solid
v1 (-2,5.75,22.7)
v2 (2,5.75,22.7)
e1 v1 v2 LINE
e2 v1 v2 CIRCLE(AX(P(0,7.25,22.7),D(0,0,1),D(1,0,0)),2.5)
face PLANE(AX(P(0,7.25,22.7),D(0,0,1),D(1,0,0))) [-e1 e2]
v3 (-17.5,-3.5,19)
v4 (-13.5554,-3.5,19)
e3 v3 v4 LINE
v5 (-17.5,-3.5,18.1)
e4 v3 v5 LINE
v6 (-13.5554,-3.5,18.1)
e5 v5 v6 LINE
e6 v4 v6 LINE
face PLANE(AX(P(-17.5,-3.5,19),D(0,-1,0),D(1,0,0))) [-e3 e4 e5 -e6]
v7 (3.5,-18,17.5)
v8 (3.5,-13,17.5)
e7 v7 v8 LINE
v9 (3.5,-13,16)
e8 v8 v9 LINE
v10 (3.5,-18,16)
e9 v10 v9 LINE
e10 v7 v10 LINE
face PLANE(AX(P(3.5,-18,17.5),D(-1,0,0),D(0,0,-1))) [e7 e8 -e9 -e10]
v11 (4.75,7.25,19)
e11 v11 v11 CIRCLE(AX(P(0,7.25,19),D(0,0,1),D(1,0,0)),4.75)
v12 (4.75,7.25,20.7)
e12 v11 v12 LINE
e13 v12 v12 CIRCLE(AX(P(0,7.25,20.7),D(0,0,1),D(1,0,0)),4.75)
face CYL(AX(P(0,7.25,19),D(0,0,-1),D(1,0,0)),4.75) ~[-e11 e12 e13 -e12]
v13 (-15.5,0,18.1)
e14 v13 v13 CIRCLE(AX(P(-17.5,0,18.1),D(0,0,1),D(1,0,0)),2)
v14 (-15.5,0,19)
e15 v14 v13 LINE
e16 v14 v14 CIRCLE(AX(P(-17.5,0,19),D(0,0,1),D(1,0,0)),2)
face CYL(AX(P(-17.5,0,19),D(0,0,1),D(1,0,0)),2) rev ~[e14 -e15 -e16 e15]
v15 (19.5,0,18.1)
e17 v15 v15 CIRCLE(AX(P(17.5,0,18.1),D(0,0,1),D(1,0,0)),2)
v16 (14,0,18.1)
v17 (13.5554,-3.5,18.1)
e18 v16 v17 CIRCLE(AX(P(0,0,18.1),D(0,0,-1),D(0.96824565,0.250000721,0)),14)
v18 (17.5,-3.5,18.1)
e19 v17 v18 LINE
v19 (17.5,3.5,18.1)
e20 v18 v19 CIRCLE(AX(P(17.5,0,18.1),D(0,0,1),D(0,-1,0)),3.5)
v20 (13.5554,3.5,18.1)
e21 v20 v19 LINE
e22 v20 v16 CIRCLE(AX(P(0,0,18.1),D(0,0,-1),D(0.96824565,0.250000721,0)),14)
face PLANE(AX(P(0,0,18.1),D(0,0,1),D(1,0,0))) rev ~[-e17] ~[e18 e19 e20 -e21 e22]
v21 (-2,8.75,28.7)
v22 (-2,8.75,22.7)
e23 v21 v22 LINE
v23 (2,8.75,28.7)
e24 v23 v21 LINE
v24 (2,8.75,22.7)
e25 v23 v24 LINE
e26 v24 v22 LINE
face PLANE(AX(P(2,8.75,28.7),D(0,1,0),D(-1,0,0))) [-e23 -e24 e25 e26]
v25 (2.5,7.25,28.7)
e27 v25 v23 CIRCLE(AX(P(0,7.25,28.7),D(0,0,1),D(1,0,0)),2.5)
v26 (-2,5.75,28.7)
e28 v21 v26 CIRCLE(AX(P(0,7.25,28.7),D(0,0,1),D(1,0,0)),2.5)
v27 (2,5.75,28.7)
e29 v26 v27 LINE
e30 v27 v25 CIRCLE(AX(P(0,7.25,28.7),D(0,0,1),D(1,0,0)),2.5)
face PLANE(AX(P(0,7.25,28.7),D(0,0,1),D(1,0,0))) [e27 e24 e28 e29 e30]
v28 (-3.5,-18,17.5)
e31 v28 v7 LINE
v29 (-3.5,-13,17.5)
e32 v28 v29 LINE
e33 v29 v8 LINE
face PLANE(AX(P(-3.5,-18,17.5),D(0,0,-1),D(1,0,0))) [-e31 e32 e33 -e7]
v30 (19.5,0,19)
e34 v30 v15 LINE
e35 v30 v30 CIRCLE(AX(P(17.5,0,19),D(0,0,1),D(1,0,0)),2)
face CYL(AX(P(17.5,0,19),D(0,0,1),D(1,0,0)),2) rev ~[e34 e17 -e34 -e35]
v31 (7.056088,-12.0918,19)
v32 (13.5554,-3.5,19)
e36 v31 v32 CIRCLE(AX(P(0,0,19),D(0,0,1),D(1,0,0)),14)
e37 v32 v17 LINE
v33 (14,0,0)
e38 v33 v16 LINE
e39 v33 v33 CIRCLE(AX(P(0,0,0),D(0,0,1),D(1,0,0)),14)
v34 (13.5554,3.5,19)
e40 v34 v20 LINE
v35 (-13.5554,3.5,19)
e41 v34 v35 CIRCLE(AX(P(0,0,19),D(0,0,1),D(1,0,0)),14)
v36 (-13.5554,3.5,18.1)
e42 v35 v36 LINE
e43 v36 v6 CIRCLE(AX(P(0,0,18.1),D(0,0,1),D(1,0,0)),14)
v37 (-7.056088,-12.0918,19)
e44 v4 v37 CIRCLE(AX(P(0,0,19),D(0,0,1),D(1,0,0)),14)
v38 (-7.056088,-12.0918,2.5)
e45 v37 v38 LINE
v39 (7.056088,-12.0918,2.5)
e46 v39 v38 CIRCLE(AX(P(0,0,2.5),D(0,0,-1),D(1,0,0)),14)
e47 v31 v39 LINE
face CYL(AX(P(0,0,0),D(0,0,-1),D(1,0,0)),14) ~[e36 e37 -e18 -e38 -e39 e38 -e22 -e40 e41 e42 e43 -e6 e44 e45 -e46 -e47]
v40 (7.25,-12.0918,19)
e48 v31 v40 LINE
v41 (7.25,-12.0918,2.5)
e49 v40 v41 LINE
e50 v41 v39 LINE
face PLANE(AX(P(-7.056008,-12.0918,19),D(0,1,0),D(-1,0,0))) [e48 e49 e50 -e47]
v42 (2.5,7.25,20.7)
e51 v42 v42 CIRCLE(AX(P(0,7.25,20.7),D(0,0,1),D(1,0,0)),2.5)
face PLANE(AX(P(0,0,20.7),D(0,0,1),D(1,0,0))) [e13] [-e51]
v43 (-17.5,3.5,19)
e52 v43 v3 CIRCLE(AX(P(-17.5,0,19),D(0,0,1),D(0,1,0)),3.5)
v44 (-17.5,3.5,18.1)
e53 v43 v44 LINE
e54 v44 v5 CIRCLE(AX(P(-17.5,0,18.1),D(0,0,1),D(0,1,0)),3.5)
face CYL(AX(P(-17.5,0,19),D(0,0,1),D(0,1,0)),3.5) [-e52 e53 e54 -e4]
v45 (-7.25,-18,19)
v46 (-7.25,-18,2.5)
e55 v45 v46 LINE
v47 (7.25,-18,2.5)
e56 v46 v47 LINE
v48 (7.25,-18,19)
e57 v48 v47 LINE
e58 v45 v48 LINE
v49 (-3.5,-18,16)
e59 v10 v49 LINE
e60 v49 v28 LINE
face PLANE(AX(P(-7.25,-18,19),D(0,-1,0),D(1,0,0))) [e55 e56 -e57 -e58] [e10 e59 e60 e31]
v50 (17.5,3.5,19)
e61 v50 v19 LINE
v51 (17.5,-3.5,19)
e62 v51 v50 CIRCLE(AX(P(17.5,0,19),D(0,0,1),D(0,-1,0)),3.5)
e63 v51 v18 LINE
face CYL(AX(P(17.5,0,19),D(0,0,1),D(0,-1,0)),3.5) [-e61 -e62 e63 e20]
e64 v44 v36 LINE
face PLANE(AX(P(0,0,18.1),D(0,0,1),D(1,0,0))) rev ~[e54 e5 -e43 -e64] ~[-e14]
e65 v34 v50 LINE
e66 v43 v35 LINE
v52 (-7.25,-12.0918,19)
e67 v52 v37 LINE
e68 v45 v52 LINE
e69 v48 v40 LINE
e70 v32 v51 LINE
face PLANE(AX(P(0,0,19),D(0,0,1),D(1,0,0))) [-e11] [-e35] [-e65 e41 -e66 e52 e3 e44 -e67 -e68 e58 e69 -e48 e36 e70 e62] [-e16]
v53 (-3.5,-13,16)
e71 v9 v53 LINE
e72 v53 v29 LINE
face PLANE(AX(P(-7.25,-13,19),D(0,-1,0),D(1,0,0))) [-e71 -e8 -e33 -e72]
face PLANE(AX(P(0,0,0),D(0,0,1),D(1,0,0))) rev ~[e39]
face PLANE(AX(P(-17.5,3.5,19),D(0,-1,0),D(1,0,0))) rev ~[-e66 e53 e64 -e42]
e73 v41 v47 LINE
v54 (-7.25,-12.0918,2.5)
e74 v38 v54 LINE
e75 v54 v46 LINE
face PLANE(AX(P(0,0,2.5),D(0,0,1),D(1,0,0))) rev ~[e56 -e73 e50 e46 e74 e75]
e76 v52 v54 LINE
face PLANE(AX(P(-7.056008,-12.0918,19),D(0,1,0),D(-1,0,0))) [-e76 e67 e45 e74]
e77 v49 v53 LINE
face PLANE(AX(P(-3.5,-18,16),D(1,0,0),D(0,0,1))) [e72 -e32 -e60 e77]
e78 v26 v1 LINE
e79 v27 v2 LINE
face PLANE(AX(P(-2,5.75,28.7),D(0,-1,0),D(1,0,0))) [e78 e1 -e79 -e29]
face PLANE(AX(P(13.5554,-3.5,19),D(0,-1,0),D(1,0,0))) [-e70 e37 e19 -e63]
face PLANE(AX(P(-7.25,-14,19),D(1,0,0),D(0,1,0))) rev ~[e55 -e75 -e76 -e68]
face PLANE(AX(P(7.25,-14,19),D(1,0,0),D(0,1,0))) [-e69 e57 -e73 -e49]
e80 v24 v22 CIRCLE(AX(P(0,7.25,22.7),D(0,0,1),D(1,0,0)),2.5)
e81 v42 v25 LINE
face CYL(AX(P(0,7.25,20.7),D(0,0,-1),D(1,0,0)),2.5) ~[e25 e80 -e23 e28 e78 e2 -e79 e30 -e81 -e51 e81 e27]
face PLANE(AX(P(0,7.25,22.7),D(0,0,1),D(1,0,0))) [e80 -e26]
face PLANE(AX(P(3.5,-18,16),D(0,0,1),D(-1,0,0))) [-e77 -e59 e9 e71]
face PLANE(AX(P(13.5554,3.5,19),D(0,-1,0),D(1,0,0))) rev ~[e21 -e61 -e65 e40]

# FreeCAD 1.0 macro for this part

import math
import FreeCAD as App
import Part
import Sketcher

V = App.Vector
Q = App.Units.Quantity

doc = App.newDocument("Part")
body = doc.addObject("PartDesign::Body", "Body")

# Sketch on XY plane
sketch1 = body.newObject("Sketcher::SketchObject", "Sketch")
sketch1.AttachmentSupport = (doc.getObject("XY_Plane"), [""])
sketch1.MapMode = "FlatFace"
sketch1.addGeometry(Part.Circle(V(0, 0, 0), V(0, 0, 1), 14), False)
sketch1.addConstraint(Sketcher.Constraint("Coincident", 0, 3, -1, 1))
sketch1.addConstraint(Sketcher.Constraint("Diameter", 0, Q("28 mm")))
pad1 = body.newObject("PartDesign::Pad", "Pad")
pad1.Profile = sketch1
pad1.Length = 19

# Sketch on XY plane
sketch2 = body.newObject("Sketcher::SketchObject", "Sketch001")
sketch2.AttachmentSupport = (doc.getObject("XY_Plane"), [""])
sketch2.MapMode = "FlatFace"
sketch2.AttachmentOffset = App.Placement(V(0, 0, 19), App.Rotation())
sketch2.addGeometry(Part.ArcOfCircle(Part.Circle(V(0, 0, 0), V(0, 0, 1), 14), math.radians(-14), math.radians(14)), False)
sketch2.addGeometry(Part.LineSegment(V(13.6, -3.5, 0), V(17.5, -3.5, 0)), False)
sketch2.addGeometry(Part.ArcOfCircle(Part.Circle(V(17.5, 0, 0), V(0, 0, 1), 3.5), math.radians(-90), math.radians(90)), False)
sketch2.addGeometry(Part.LineSegment(V(17.5, 3.5, 0), V(13.6, 3.5, 0)), False)
sketch2.addGeometry(Part.Circle(V(17.5, 0, 0), V(0, 0, 1), 2), False)
sketch2.addGeometry(Part.ArcOfCircle(Part.Circle(V(0, 0, 0), V(0, 0, 1), 14), math.radians(166), math.radians(194)), False)
sketch2.addGeometry(Part.LineSegment(V(-13.6, 3.5, 0), V(-17.5, 3.5, 0)), False)
sketch2.addGeometry(Part.ArcOfCircle(Part.Circle(V(-17.5, 0, 0), V(0, 0, 1), 3.5), math.radians(90), math.radians(270)), False)
sketch2.addGeometry(Part.LineSegment(V(-17.5, -3.5, 0), V(-13.6, -3.5, 0)), False)
sketch2.addGeometry(Part.Circle(V(-17.5, 0, 0), V(0, 0, 1), 2), False)
sketch2.addConstraint(Sketcher.Constraint("Coincident", 0, 1, 1, 1))
sketch2.addConstraint(Sketcher.Constraint("Tangent", 1, 2, 2, 1))
sketch2.addConstraint(Sketcher.Constraint("Tangent", 2, 2, 3, 1))
sketch2.addConstraint(Sketcher.Constraint("Coincident", 3, 2, 0, 2))
sketch2.addConstraint(Sketcher.Constraint("Coincident", 5, 1, 6, 1))
sketch2.addConstraint(Sketcher.Constraint("Tangent", 6, 2, 7, 1))
sketch2.addConstraint(Sketcher.Constraint("Tangent", 7, 2, 8, 1))
sketch2.addConstraint(Sketcher.Constraint("Coincident", 8, 2, 5, 2))
sketch2.addConstraint(Sketcher.Constraint("Horizontal", 1))
sketch2.addConstraint(Sketcher.Constraint("Horizontal", 3))
sketch2.addConstraint(Sketcher.Constraint("Horizontal", 6))
sketch2.addConstraint(Sketcher.Constraint("Horizontal", 8))
sketch2.addConstraint(Sketcher.Constraint("Coincident", 0, 3, -1, 1))
sketch2.addConstraint(Sketcher.Constraint("Coincident", 5, 3, -1, 1))
sketch2.addConstraint(Sketcher.Constraint("Coincident", 4, 3, 2, 3))
sketch2.addConstraint(Sketcher.Constraint("Coincident", 9, 3, 7, 3))
sketch2.addConstraint(Sketcher.Constraint("Equal", 0, 5))
sketch2.addConstraint(Sketcher.Constraint("Equal", 2, 7))
sketch2.addConstraint(Sketcher.Constraint("Equal", 4, 9))
sketch2.addConstraint(Sketcher.Constraint("Symmetric", 2, 3, 7, 3, -1, 1))
sketch2.addConstraint(Sketcher.Constraint("PointOnObject", 2, 3, -1))
sketch2.addConstraint(Sketcher.Constraint("Diameter", 4, Q("4 mm")))
sketch2.addConstraint(Sketcher.Constraint("Radius", 2, Q("3.5 mm")))
sketch2.addConstraint(Sketcher.Constraint("Radius", 0, Q("14 mm")))
sketch2.addConstraint(Sketcher.Constraint("DistanceX", 7, 3, 2, 3, Q("35 mm")))
pad2 = body.newObject("PartDesign::Pad", "Pad001")
pad2.Profile = sketch2
pad2.Length = 0.9
pad2.Reversed = True

# Sketch on XY plane
sketch3 = body.newObject("Sketcher::SketchObject", "Sketch002")
sketch3.AttachmentSupport = (doc.getObject("XY_Plane"), [""])
sketch3.MapMode = "FlatFace"
sketch3.AttachmentOffset = App.Placement(V(0, 0, 19), App.Rotation())
sketch3.addGeometry(Part.LineSegment(V(-7, -12, 0), V(-7, -18, 0)), False)
sketch3.addGeometry(Part.LineSegment(V(-7, -18, 0), V(7, -18, 0)), False)
sketch3.addGeometry(Part.LineSegment(V(7, -18, 0), V(7, -12, 0)), False)
sketch3.addGeometry(Part.LineSegment(V(7, -12, 0), V(-7, -12, 0)), False)
sketch3.addConstraint(Sketcher.Constraint("Coincident", 0, 2, 1, 1))
sketch3.addConstraint(Sketcher.Constraint("Coincident", 1, 2, 2, 1))
sketch3.addConstraint(Sketcher.Constraint("Coincident", 2, 2, 3, 1))
sketch3.addConstraint(Sketcher.Constraint("Coincident", 3, 2, 0, 1))
sketch3.addConstraint(Sketcher.Constraint("Vertical", 0))
sketch3.addConstraint(Sketcher.Constraint("Horizontal", 1))
sketch3.addConstraint(Sketcher.Constraint("Vertical", 2))
sketch3.addConstraint(Sketcher.Constraint("Horizontal", 3))
sketch3.addConstraint(Sketcher.Constraint("DistanceX", 1, 1, 1, 2, Q("14.5 mm")))
sketch3.addConstraint(Sketcher.Constraint("DistanceY", 0, 2, -1, 1, Q("18 mm")))
sketch3.addConstraint(Sketcher.Constraint("DistanceX", 0, 2, -1, 1, Q("7.25 mm")))
sketch3.addConstraint(Sketcher.Constraint("DistanceY", 0, 2, 0, 1, Q("5.9082 mm")))
pad3 = body.newObject("PartDesign::Pad", "Pad002")
pad3.Profile = sketch3
pad3.Length = 16.5
pad3.Reversed = True

# Sketch on XY plane
sketch4 = body.newObject("Sketcher::SketchObject", "Sketch003")
sketch4.AttachmentSupport = (doc.getObject("XY_Plane"), [""])
sketch4.MapMode = "FlatFace"
sketch4.AttachmentOffset = App.Placement(V(0, 0, 19), App.Rotation())
sketch4.addGeometry(Part.Circle(V(0, 7.2, 0), V(0, 0, 1), 4.8), False)
sketch4.addConstraint(Sketcher.Constraint("PointOnObject", 0, 3, -2))
sketch4.addConstraint(Sketcher.Constraint("Diameter", 0, Q("9.5 mm")))
sketch4.addConstraint(Sketcher.Constraint("DistanceY", -1, 1, 0, 3, Q("7.25 mm")))
pad4 = body.newObject("PartDesign::Pad", "Pad003")
pad4.Profile = sketch4
pad4.Length = 1.7

# Sketch on XY plane
sketch5 = body.newObject("Sketcher::SketchObject", "Sketch004")
sketch5.AttachmentSupport = (doc.getObject("XY_Plane"), [""])
sketch5.MapMode = "FlatFace"
sketch5.AttachmentOffset = App.Placement(V(0, 0, 20.7), App.Rotation())
sketch5.addGeometry(Part.Circle(V(0, 7.2, 0), V(0, 0, 1), 2.5), False)
sketch5.addConstraint(Sketcher.Constraint("PointOnObject", 0, 3, -2))
sketch5.addConstraint(Sketcher.Constraint("Diameter", 0, Q("5 mm")))
sketch5.addConstraint(Sketcher.Constraint("DistanceY", -1, 1, 0, 3, Q("7.25 mm")))
pad5 = body.newObject("PartDesign::Pad", "Pad004")
pad5.Profile = sketch5
pad5.Length = 8

# Sketch on XY plane
sketch6 = body.newObject("Sketcher::SketchObject", "Sketch005")
sketch6.AttachmentSupport = (doc.getObject("XY_Plane"), [""])
sketch6.MapMode = "FlatFace"
sketch6.AttachmentOffset = App.Placement(V(0, 0, 28.7), App.Rotation())
sketch6.addGeometry(Part.LineSegment(V(-2, 8.8, 0), V(2, 8.8, 0)), False)
sketch6.addGeometry(Part.ArcOfCircle(Part.Circle(V(0, 7.2, 0), V(0, 0, 1), 2.5), math.radians(37), math.radians(143)), False)
sketch6.addGeometry(Part.ArcOfCircle(Part.Circle(V(0, 7.2, 0), V(0, 0, 1), 2.5), math.radians(-143), math.radians(-37)), False)
sketch6.addGeometry(Part.LineSegment(V(2, 5.8, 0), V(-2, 5.8, 0)), False)
sketch6.addConstraint(Sketcher.Constraint("Coincident", 0, 1, 1, 2))
sketch6.addConstraint(Sketcher.Constraint("Coincident", 1, 1, 0, 2))
sketch6.addConstraint(Sketcher.Constraint("Coincident", 2, 1, 3, 2))
sketch6.addConstraint(Sketcher.Constraint("Coincident", 3, 1, 2, 2))
sketch6.addConstraint(Sketcher.Constraint("Horizontal", 0))
sketch6.addConstraint(Sketcher.Constraint("Horizontal", 3))
sketch6.addConstraint(Sketcher.Constraint("Coincident", 2, 3, 1, 3))
sketch6.addConstraint(Sketcher.Constraint("Equal", 1, 2))
sketch6.addConstraint(Sketcher.Constraint("PointOnObject", 1, 3, -2))
sketch6.addConstraint(Sketcher.Constraint("Vertical", 0, 1, 2, 1))
sketch6.addConstraint(Sketcher.Constraint("Radius", 1, Q("2.5 mm")))
sketch6.addConstraint(Sketcher.Constraint("DistanceX", 0, 1, 0, 2, Q("4 mm")))
sketch6.addConstraint(Sketcher.Constraint("DistanceY", -1, 1, 1, 3, Q("7.25 mm")))
pocket1 = body.newObject("PartDesign::Pocket", "Pocket")
pocket1.Profile = sketch6
pocket1.Length = 6

# Sketch on XZ plane
sketch7 = body.newObject("Sketcher::SketchObject", "Sketch006")
sketch7.AttachmentSupport = (doc.getObject("XZ_Plane"), [""])
sketch7.MapMode = "FlatFace"
sketch7.AttachmentOffset = App.Placement(V(0, 0, 18), App.Rotation())
sketch7.addGeometry(Part.LineSegment(V(3.5, 17.5, 0), V(-3.5, 17.5, 0)), False)
sketch7.addGeometry(Part.LineSegment(V(-3.5, 17.5, 0), V(-3.5, 16, 0)), False)
sketch7.addGeometry(Part.LineSegment(V(-3.5, 16, 0), V(3.5, 16, 0)), False)
sketch7.addGeometry(Part.LineSegment(V(3.5, 16, 0), V(3.5, 17.5, 0)), False)
sketch7.addConstraint(Sketcher.Constraint("Coincident", 0, 2, 1, 1))
sketch7.addConstraint(Sketcher.Constraint("Coincident", 1, 2, 2, 1))
sketch7.addConstraint(Sketcher.Constraint("Coincident", 2, 2, 3, 1))
sketch7.addConstraint(Sketcher.Constraint("Coincident", 3, 2, 0, 1))
sketch7.addConstraint(Sketcher.Constraint("Horizontal", 0))
sketch7.addConstraint(Sketcher.Constraint("Vertical", 1))
sketch7.addConstraint(Sketcher.Constraint("Horizontal", 2))
sketch7.addConstraint(Sketcher.Constraint("Vertical", 3))
sketch7.addConstraint(Sketcher.Constraint("DistanceX", 0, 2, 0, 1, Q("7 mm")))
sketch7.addConstraint(Sketcher.Constraint("DistanceY", 1, 2, 1, 1, Q("1.5 mm")))
sketch7.addConstraint(Sketcher.Constraint("DistanceY", -1, 1, 1, 2, Q("16 mm")))
sketch7.addConstraint(Sketcher.Constraint("DistanceX", 0, 2, -1, 1, Q("3.5 mm")))
pocket2 = body.newObject("PartDesign::Pocket", "Pocket001")
pocket2.Profile = sketch7
pocket2.Length = 5

doc.recompute()
